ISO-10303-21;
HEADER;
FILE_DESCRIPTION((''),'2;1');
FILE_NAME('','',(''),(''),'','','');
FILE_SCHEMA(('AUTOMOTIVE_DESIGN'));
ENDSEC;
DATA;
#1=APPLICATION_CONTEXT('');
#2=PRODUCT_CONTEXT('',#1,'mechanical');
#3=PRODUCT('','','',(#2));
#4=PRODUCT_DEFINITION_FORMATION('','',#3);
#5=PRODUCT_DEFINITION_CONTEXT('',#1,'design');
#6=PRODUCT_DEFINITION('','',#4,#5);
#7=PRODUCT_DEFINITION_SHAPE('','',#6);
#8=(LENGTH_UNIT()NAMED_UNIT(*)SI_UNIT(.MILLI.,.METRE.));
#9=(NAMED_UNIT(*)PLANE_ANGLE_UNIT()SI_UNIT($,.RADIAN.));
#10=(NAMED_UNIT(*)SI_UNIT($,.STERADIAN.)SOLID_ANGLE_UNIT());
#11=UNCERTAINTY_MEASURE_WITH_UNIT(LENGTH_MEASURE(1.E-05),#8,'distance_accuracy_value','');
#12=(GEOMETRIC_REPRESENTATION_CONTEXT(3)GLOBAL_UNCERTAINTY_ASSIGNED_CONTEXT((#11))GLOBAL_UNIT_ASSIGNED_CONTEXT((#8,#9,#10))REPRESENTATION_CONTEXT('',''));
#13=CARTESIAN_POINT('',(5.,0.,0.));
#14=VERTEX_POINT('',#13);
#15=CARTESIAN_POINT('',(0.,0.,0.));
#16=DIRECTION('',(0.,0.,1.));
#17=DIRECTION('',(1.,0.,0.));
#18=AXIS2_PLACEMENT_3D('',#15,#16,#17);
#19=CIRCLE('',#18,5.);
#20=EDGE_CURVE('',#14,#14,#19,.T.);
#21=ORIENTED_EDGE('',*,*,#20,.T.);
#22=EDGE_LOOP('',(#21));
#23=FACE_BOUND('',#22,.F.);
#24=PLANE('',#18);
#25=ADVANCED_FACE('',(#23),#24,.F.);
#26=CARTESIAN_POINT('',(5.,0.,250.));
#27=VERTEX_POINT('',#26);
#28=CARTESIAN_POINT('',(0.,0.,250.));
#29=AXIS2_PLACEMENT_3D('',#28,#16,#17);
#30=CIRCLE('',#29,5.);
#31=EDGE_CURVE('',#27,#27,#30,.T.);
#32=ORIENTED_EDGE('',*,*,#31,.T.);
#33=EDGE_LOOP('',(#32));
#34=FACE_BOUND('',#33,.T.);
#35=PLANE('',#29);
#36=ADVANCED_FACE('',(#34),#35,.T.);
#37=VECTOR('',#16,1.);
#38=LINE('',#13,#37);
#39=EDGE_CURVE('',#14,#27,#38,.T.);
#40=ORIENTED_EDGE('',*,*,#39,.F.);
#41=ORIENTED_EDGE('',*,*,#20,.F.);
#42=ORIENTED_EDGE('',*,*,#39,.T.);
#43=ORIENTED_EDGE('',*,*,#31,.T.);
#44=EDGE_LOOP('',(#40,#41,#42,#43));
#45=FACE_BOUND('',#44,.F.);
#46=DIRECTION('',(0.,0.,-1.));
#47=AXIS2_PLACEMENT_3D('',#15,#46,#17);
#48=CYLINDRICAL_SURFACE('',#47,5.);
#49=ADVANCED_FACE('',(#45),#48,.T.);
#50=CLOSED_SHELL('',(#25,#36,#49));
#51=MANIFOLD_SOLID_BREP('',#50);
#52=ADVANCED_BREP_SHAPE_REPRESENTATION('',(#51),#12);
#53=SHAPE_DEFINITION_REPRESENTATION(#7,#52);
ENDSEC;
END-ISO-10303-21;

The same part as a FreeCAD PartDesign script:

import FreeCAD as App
import Part
import Sketcher

V = App.Vector
Q = App.Units.Quantity

doc = App.newDocument("Part")
body = doc.addObject("PartDesign::Body", "Body")

sketch1 = body.newObject("Sketcher::SketchObject", "Sketch")
sketch1.AttachmentSupport = (doc.getObject("XY_Plane"), [""])
sketch1.MapMode = "FlatFace"
sketch1.addGeometry(Part.Circle(V(0, 0, 0), V(0, 0, 1), 5), False)
sketch1.addConstraint([
    Sketcher.Constraint("Coincident", 0, 3, -1, 1),
    Sketcher.Constraint("Diameter", 0, Q("10 mm")),
])
pad1 = body.newObject("PartDesign::Pad", "Pad")
pad1.Profile = sketch1
pad1.Length = 250

doc.recompute()
